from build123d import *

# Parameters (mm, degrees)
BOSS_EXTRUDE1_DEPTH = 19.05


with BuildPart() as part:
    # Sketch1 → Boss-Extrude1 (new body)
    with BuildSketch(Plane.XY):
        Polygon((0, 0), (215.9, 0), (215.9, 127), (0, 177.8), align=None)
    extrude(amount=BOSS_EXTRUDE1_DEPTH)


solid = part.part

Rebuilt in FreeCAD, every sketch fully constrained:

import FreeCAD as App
import Part
import Sketcher
from FreeCAD import Vector
Q = App.Units.Quantity

doc = App.newDocument("Part")
params = doc.addObject("Spreadsheet::Sheet", "Params")
for row, (alias, value) in enumerate([
    ("sketch1_height", "5 in"),
    ("sketch1_height2", "7 in"),
    ("sketch1_width", "8.5 in"),
    ("pad1_length", "0.75 in"),
], start=1):
    params.set(f"A{row}", alias)
    params.set(f"B{row}", "=" + value)
    params.setAlias(f"B{row}", alias)

body = doc.addObject("PartDesign::Body", "Body")

# Sketch on XY plane
sketch1 = body.newObject("Sketcher::SketchObject", "Sketch")
sketch1.AttachmentSupport = (doc.getObject("XY_Plane"), [""])
sketch1.MapMode = "FlatFace"
sketch1.addGeometry([
    Part.LineSegment(Vector(0, 0, 0), Vector(216, 0, 0)),
    Part.LineSegment(Vector(216, 0, 0), Vector(216, 127, 0)),
    Part.LineSegment(Vector(216, 127, 0), Vector(0, 178, 0)),
    Part.LineSegment(Vector(0, 178, 0), Vector(0, 0, 0)),
], False)
sketch1.addConstraint([
    Sketcher.Constraint("Coincident", 0, 2, 1, 1),
    Sketcher.Constraint("Coincident", 1, 2, 2, 1),
    Sketcher.Constraint("Coincident", 2, 2, 3, 1),
    Sketcher.Constraint("Coincident", 3, 2, 0, 1),
    Sketcher.Constraint("Horizontal", 0),
    Sketcher.Constraint("Vertical", 1),
    Sketcher.Constraint("Vertical", 3),
    Sketcher.Constraint("Coincident", 3, 2, -1, 1),
    Sketcher.Constraint("DistanceY", 1, 1, 1, 2, Q("5 in")),
    Sketcher.Constraint("DistanceY", 3, 2, 3, 1, Q("7 in")),
    Sketcher.Constraint("DistanceX", 0, 1, 0, 2, Q("8.5 in")),
])
sketch1.setExpression("Constraints[8]", "Params.sketch1_height")
sketch1.setExpression("Constraints[9]", "Params.sketch1_height2")
sketch1.setExpression("Constraints[10]", "Params.sketch1_width")
pad1 = body.newObject("PartDesign::Pad", "Pad")
pad1.Profile = sketch1
pad1.setExpression("Length", "Params.pad1_length")

doc.recompute()
